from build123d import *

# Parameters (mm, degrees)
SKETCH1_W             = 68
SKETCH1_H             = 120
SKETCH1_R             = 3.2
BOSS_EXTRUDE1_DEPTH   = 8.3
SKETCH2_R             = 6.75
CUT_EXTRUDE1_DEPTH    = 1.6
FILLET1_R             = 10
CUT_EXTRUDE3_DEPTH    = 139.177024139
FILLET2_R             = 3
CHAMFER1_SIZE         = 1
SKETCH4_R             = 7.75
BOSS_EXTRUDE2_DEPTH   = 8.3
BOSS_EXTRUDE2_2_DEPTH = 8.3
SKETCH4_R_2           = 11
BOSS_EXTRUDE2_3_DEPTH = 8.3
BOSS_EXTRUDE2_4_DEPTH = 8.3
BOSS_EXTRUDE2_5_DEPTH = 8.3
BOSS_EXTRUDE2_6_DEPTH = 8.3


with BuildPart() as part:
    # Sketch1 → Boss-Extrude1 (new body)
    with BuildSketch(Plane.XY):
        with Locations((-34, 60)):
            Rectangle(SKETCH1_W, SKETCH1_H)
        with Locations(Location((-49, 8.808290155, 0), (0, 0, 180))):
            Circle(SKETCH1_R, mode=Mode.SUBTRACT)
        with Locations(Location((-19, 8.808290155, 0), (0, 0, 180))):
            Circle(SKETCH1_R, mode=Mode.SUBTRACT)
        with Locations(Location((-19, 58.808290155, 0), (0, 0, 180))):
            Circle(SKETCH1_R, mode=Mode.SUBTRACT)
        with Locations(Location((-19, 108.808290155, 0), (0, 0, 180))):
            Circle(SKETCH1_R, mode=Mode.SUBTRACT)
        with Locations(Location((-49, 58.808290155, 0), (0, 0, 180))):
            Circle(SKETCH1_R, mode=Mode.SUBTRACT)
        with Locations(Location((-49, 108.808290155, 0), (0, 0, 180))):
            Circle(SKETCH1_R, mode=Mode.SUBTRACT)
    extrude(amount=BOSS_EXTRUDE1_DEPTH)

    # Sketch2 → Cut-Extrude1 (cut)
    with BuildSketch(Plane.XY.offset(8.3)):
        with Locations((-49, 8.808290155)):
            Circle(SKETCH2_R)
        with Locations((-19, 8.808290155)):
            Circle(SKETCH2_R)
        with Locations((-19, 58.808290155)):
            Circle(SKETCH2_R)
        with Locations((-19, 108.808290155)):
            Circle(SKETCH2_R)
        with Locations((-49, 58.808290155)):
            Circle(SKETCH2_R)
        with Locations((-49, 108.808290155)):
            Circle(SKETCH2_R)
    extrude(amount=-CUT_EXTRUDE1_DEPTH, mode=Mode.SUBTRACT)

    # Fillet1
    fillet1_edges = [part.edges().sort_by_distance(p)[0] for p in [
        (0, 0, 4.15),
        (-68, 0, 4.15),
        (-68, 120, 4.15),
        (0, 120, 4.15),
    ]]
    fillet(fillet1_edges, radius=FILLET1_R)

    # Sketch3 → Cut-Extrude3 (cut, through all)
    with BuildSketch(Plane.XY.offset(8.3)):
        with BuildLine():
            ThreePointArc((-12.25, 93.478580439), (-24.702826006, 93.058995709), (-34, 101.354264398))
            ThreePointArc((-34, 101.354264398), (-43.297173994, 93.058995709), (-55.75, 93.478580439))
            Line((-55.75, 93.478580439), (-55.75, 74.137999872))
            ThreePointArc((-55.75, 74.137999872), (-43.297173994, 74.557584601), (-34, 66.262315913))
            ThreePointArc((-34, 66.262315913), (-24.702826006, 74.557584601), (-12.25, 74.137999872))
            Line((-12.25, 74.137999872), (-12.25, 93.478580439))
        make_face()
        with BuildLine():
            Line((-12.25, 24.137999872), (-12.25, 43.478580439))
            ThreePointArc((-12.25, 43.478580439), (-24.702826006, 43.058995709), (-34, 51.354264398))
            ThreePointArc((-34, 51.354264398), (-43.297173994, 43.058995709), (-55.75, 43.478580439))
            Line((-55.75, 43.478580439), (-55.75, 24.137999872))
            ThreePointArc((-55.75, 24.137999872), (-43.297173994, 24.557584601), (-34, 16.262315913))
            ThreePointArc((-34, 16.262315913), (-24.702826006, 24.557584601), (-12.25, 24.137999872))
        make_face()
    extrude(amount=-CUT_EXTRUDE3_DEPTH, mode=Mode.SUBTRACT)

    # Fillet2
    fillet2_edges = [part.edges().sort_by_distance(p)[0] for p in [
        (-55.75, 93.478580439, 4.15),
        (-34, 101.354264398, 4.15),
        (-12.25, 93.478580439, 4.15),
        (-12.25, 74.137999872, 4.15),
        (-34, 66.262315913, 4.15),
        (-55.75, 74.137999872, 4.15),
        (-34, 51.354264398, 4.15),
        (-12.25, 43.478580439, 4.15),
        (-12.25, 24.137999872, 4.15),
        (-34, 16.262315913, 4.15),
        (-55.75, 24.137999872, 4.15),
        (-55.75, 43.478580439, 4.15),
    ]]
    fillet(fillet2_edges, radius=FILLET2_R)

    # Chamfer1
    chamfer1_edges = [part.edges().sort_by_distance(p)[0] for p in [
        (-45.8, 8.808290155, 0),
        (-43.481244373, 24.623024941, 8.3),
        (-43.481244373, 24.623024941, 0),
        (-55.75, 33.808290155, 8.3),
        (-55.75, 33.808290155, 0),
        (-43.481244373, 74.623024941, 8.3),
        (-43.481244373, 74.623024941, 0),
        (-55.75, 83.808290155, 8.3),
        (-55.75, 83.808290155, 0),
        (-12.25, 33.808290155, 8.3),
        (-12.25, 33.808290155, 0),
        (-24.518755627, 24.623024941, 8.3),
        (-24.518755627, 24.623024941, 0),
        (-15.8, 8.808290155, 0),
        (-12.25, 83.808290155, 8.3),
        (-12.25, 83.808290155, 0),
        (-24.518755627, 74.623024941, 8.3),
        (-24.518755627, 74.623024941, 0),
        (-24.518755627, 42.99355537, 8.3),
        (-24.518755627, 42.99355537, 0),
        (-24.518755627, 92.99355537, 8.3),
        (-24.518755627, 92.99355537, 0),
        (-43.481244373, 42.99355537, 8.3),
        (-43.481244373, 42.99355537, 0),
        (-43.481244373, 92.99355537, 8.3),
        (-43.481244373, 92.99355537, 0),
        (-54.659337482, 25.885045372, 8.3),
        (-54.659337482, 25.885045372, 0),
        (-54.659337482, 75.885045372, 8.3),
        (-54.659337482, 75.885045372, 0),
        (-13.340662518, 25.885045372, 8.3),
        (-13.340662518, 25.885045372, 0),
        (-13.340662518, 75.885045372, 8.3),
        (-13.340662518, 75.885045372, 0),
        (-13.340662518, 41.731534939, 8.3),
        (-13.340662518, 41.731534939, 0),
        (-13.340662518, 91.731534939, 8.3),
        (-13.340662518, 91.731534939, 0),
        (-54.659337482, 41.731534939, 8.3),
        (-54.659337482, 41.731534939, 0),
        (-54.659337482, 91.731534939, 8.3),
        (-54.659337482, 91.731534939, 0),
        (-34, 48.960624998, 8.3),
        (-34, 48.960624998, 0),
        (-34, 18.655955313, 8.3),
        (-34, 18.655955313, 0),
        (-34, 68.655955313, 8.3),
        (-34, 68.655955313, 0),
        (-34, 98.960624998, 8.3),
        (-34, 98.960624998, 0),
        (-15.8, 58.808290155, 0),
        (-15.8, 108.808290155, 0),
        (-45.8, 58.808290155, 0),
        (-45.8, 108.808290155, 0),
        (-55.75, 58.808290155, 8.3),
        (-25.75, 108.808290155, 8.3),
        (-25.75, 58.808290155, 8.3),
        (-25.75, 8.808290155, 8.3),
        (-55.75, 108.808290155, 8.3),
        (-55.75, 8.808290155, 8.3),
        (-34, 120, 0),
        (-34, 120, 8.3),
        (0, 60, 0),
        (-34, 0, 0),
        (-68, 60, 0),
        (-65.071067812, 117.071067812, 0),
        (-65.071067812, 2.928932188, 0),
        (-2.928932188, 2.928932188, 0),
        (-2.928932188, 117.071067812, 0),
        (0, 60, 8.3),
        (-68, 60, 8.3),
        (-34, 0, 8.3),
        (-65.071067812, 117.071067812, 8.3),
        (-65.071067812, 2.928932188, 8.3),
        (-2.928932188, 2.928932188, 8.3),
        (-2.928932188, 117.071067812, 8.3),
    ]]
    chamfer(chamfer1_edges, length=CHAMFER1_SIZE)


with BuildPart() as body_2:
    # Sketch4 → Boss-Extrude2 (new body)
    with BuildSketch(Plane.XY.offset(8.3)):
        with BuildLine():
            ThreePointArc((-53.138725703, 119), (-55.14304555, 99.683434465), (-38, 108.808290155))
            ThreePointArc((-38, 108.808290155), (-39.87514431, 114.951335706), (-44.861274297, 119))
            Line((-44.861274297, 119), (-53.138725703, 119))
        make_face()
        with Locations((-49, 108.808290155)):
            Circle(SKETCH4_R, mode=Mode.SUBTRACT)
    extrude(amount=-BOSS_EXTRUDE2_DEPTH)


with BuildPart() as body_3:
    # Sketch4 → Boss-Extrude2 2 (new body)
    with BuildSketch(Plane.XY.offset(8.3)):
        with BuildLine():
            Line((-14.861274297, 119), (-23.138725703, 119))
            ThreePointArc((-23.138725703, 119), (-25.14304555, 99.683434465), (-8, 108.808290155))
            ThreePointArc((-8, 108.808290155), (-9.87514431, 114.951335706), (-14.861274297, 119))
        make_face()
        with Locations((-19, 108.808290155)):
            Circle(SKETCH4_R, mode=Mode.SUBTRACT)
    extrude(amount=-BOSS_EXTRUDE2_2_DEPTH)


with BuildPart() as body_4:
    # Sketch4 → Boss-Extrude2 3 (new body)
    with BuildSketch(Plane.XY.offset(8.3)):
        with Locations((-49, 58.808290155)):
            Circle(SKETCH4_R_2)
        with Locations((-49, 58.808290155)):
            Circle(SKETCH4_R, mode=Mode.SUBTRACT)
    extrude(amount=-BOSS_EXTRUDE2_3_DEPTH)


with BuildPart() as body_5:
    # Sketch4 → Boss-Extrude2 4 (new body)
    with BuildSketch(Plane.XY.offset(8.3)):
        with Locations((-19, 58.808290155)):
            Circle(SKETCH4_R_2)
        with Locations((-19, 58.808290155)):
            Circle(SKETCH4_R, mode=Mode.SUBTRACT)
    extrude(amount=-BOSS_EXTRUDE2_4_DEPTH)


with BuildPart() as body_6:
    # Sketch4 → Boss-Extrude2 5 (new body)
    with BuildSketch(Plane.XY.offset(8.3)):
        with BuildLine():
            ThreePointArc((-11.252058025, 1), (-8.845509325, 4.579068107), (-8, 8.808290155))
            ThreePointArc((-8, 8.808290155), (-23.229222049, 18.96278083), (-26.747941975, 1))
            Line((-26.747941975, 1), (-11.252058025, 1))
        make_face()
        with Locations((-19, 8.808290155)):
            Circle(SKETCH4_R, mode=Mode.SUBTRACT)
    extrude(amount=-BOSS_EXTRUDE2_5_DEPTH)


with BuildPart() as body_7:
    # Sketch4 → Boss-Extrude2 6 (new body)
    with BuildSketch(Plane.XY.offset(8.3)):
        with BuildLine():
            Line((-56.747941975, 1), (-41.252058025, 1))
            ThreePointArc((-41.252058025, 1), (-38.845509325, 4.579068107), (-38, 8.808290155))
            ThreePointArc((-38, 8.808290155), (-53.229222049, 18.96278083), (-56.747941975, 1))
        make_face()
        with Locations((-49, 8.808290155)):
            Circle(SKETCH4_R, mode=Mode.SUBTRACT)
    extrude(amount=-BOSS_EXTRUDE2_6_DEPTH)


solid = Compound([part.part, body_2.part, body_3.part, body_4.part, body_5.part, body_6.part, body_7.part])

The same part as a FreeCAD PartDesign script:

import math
import FreeCAD as App
import Part
import Sketcher
from FreeCAD import Vector


def edges_at(feature, points):
    """Names of the edges that pass closest to the given points."""
    edges = feature.Shape.Edges
    near = lambda p: min(range(len(edges)), key=lambda i: edges[i].distToShape(Part.Vertex(*p))[0])
    return sorted({f"Edge{near(p) + 1}" for p in points})

doc = App.newDocument("Part")
body = doc.addObject("PartDesign::Body", "Body")

# Sketch on XY plane
sketch1 = doc.addObject("Sketcher::SketchObject", "Sketch")
body.addObject(sketch1)
sketch1.AttachmentSupport = (doc.XY_Plane, [""])
sketch1.MapMode = "FlatFace"
sketch1.addGeometry(Part.LineSegment(Vector(-68, 120, 0), Vector(-68, 0, 0)), False)
sketch1.addGeometry(Part.LineSegment(Vector(-68, 0, 0), Vector(0, 0, 0)), False)
sketch1.addGeometry(Part.LineSegment(Vector(0, 0, 0), Vector(0, 120, 0)), False)
sketch1.addGeometry(Part.LineSegment(Vector(0, 120, 0), Vector(-68, 120, 0)), False)
sketch1.addGeometry(Part.Circle(Vector(-49, 8.8, 0), Vector(0, 0, 1), 3.2), False)
sketch1.addGeometry(Part.Circle(Vector(-19, 8.8, 0), Vector(0, 0, 1), 3.2), False)
sketch1.addGeometry(Part.Circle(Vector(-49, 58.8, 0), Vector(0, 0, 1), 3.2), False)
sketch1.addGeometry(Part.Circle(Vector(-49, 108.8, 0), Vector(0, 0, 1), 3.2), False)
sketch1.addGeometry(Part.Circle(Vector(-19, 58.8, 0), Vector(0, 0, 1), 3.2), False)
sketch1.addGeometry(Part.Circle(Vector(-19, 108.8, 0), Vector(0, 0, 1), 3.2), False)
sketch1.addConstraint(Sketcher.Constraint("Coincident", 0, 2, 1, 1))
sketch1.addConstraint(Sketcher.Constraint("Coincident", 1, 2, 2, 1))
sketch1.addConstraint(Sketcher.Constraint("Coincident", 2, 2, 3, 1))
sketch1.addConstraint(Sketcher.Constraint("Coincident", 3, 2, 0, 1))
sketch1.addConstraint(Sketcher.Constraint("Vertical", 0))
sketch1.addConstraint(Sketcher.Constraint("Horizontal", 1))
sketch1.addConstraint(Sketcher.Constraint("Vertical", 2))
sketch1.addConstraint(Sketcher.Constraint("Horizontal", 3))
sketch1.addConstraint(Sketcher.Constraint("Coincident", 1, 2, -1, 1))
sketch1.addConstraint(Sketcher.Constraint("Equal", 4, 5))
sketch1.addConstraint(Sketcher.Constraint("Equal", 5, 6))
sketch1.addConstraint(Sketcher.Constraint("Equal", 6, 7))
sketch1.addConstraint(Sketcher.Constraint("Equal", 7, 8))
sketch1.addConstraint(Sketcher.Constraint("Equal", 8, 9))
sketch1.addConstraint(Sketcher.Constraint("Horizontal", 4, 3, 5, 3))
sketch1.addConstraint(Sketcher.Constraint("Horizontal", 6, 3, 8, 3))
sketch1.addConstraint(Sketcher.Constraint("Horizontal", 7, 3, 9, 3))
sketch1.addConstraint(Sketcher.Constraint("Vertical", 4, 3, 6, 3))
sketch1.addConstraint(Sketcher.Constraint("Vertical", 6, 3, 7, 3))
sketch1.addConstraint(Sketcher.Constraint("Vertical", 5, 3, 8, 3))
sketch1.addConstraint(Sketcher.Constraint("Vertical", 8, 3, 9, 3))
sketch1.addConstraint(Sketcher.Constraint("Diameter", 4, 6.4))
sketch1.addConstraint(Sketcher.Constraint("DistanceX", 1, 1, 1, 2, 68.0))
sketch1.addConstraint(Sketcher.Constraint("DistanceY", 0, 2, 0, 1, 120.0))
sketch1.addConstraint(Sketcher.Constraint("DistanceX", 4, 3, -1, 1, 49.0))
sketch1.addConstraint(Sketcher.Constraint("DistanceX", 5, 3, -1, 1, 19.0))
sketch1.addConstraint(Sketcher.Constraint("DistanceY", 4, 3, 6, 3, 50.0))
sketch1.addConstraint(Sketcher.Constraint("DistanceY", 6, 3, 7, 3, 50.0))
sketch1.addConstraint(Sketcher.Constraint("DistanceY", -1, 1, 4, 3, 8.80829))
pad1 = doc.addObject("PartDesign::Pad", "Pad")
body.addObject(pad1)
pad1.Profile = sketch1
pad1.Length = 8.3

# Sketch on XY plane
sketch2 = doc.addObject("Sketcher::SketchObject", "Sketch001")
body.addObject(sketch2)
sketch2.AttachmentSupport = (doc.XY_Plane, [""])
sketch2.MapMode = "FlatFace"
sketch2.AttachmentOffset = App.Placement(Vector(0, 0, 8.3), App.Rotation())
sketch2.addGeometry(Part.Circle(Vector(-49, 9, 0), Vector(0, 0, 1), 7), False)
sketch2.addGeometry(Part.Circle(Vector(-19, 9, 0), Vector(0, 0, 1), 7), False)
sketch2.addGeometry(Part.Circle(Vector(-19, 59, 0), Vector(0, 0, 1), 7), False)
sketch2.addGeometry(Part.Circle(Vector(-19, 109, 0), Vector(0, 0, 1), 7), False)
sketch2.addGeometry(Part.Circle(Vector(-49, 59, 0), Vector(0, 0, 1), 7), False)
sketch2.addGeometry(Part.Circle(Vector(-49, 109, 0), Vector(0, 0, 1), 7), False)
sketch2.addConstraint(Sketcher.Constraint("Equal", 0, 1))
sketch2.addConstraint(Sketcher.Constraint("Equal", 1, 2))
sketch2.addConstraint(Sketcher.Constraint("Equal", 2, 3))
sketch2.addConstraint(Sketcher.Constraint("Equal", 3, 4))
sketch2.addConstraint(Sketcher.Constraint("Equal", 4, 5))
sketch2.addConstraint(Sketcher.Constraint("Horizontal", 0, 3, 1, 3))
sketch2.addConstraint(Sketcher.Constraint("Horizontal", 2, 3, 4, 3))
sketch2.addConstraint(Sketcher.Constraint("Horizontal", 3, 3, 5, 3))
sketch2.addConstraint(Sketcher.Constraint("Vertical", 1, 3, 2, 3))
sketch2.addConstraint(Sketcher.Constraint("Vertical", 2, 3, 3, 3))
sketch2.addConstraint(Sketcher.Constraint("Vertical", 0, 3, 4, 3))
sketch2.addConstraint(Sketcher.Constraint("Vertical", 4, 3, 5, 3))
sketch2.addConstraint(Sketcher.Constraint("Diameter", 0, 13.5))
sketch2.addConstraint(Sketcher.Constraint("DistanceX", 0, 3, -1, 1, 49.0))
sketch2.addConstraint(Sketcher.Constraint("DistanceX", 1, 3, -1, 1, 19.0))
sketch2.addConstraint(Sketcher.Constraint("DistanceY", 1, 3, 2, 3, 50.0))
sketch2.addConstraint(Sketcher.Constraint("DistanceY", 2, 3, 3, 3, 50.0))
sketch2.addConstraint(Sketcher.Constraint("DistanceY", -1, 1, 0, 3, 8.80829))
pocket1 = doc.addObject("PartDesign::Pocket", "Pocket")
body.addObject(pocket1)
pocket1.Profile = sketch2
pocket1.Length = 1.6
doc.recompute()

fillet = doc.addObject("PartDesign::Fillet", "Fillet")
body.addObject(fillet)
fillet.Base = (pocket1, edges_at(pocket1, [
    (0, 0, 4.15),
    (-68, 0, 4.15),
    (-68, 120, 4.15),
    (0, 120, 4.15),
]))
fillet.Radius = 10

# Sketch on XY plane
sketch3 = doc.addObject("Sketcher::SketchObject", "Sketch002")
body.addObject(sketch3)
sketch3.AttachmentSupport = (doc.XY_Plane, [""])
sketch3.MapMode = "FlatFace"
sketch3.AttachmentOffset = App.Placement(Vector(0, 0, 8.3), App.Rotation())
sketch3.addGeometry(Part.ArcOfCircle(Part.Circle(Vector(-19, 109, 0), Vector(0, 0, 1), 17), math.radians(-154), math.radians(-66)), False)
sketch3.addGeometry(Part.ArcOfCircle(Part.Circle(Vector(-49, 109, 0), Vector(0, 0, 1), 17), math.radians(-114), math.radians(-26)), False)
sketch3.addGeometry(Part.LineSegment(Vector(-56, 93, 0), Vector(-56, 74, 0)), False)
sketch3.addGeometry(Part.ArcOfCircle(Part.Circle(Vector(-49, 59, 0), Vector(0, 0, 1), 17), math.radians(26), math.radians(114)), False)
sketch3.addGeometry(Part.ArcOfCircle(Part.Circle(Vector(-19, 59, 0), Vector(0, 0, 1), 17), math.radians(66), math.radians(154)), False)
sketch3.addGeometry(Part.LineSegment(Vector(-12, 74, 0), Vector(-12, 93, 0)), False)
sketch3.addGeometry(Part.LineSegment(Vector(-12, 24, 0), Vector(-12, 43, 0)), False)
sketch3.addGeometry(Part.ArcOfCircle(Part.Circle(Vector(-19, 59, 0), Vector(0, 0, 1), 17), math.radians(-154), math.radians(-66)), False)
sketch3.addGeometry(Part.ArcOfCircle(Part.Circle(Vector(-49, 59, 0), Vector(0, 0, 1), 17), math.radians(-114), math.radians(-26)), False)
sketch3.addGeometry(Part.LineSegment(Vector(-56, 43, 0), Vector(-56, 24, 0)), False)
sketch3.addGeometry(Part.ArcOfCircle(Part.Circle(Vector(-49, 9, 0), Vector(0, 0, 1), 17), math.radians(26), math.radians(114)), False)
sketch3.addGeometry(Part.ArcOfCircle(Part.Circle(Vector(-19, 9, 0), Vector(0, 0, 1), 17), math.radians(66), math.radians(154)), False)
sketch3.addConstraint(Sketcher.Constraint("Coincident", 0, 1, 1, 2))
sketch3.addConstraint(Sketcher.Constraint("Coincident", 1, 1, 2, 1))
sketch3.addConstraint(Sketcher.Constraint("Coincident", 2, 2, 3, 2))
sketch3.addConstraint(Sketcher.Constraint("Coincident", 3, 1, 4, 2))
sketch3.addConstraint(Sketcher.Constraint("Coincident", 4, 1, 5, 1))
sketch3.addConstraint(Sketcher.Constraint("Coincident", 5, 2, 0, 2))
sketch3.addConstraint(Sketcher.Constraint("Coincident", 6, 2, 7, 2))
sketch3.addConstraint(Sketcher.Constraint("Coincident", 7, 1, 8, 2))
sketch3.addConstraint(Sketcher.Constraint("Coincident", 8, 1, 9, 1))
sketch3.addConstraint(Sketcher.Constraint("Coincident", 9, 2, 10, 2))
sketch3.addConstraint(Sketcher.Constraint("Coincident", 10, 1, 11, 2))
sketch3.addConstraint(Sketcher.Constraint("Coincident", 11, 1, 6, 1))
sketch3.addConstraint(Sketcher.Constraint("Vertical", 2))
sketch3.addConstraint(Sketcher.Constraint("Vertical", 5))
sketch3.addConstraint(Sketcher.Constraint("Vertical", 6))
sketch3.addConstraint(Sketcher.Constraint("Vertical", 9))
sketch3.addConstraint(Sketcher.Constraint("Coincident", 7, 3, 4, 3))
sketch3.addConstraint(Sketcher.Constraint("Coincident", 8, 3, 3, 3))
sketch3.addConstraint(Sketcher.Constraint("Equal", 0, 1))
sketch3.addConstraint(Sketcher.Constraint("Equal", 1, 3))
sketch3.addConstraint(Sketcher.Constraint("Equal", 3, 4))
sketch3.addConstraint(Sketcher.Constraint("Equal", 4, 7))
sketch3.addConstraint(Sketcher.Constraint("Equal", 7, 8))
sketch3.addConstraint(Sketcher.Constraint("Equal", 8, 10))
sketch3.addConstraint(Sketcher.Constraint("Equal", 10, 11))
sketch3.addConstraint(Sketcher.Constraint("Horizontal", 0, 3, 1, 3))
sketch3.addConstraint(Sketcher.Constraint("Horizontal", 3, 3, 4, 3))
sketch3.addConstraint(Sketcher.Constraint("Horizontal", 10, 3, 11, 3))
sketch3.addConstraint(Sketcher.Constraint("Horizontal", 2, 2, 4, 1))
sketch3.addConstraint(Sketcher.Constraint("Horizontal", 1, 1, 5, 2))
sketch3.addConstraint(Sketcher.Constraint("Horizontal", 6, 2, 8, 1))
sketch3.addConstraint(Sketcher.Constraint("Horizontal", 9, 2, 11, 1))
sketch3.addConstraint(Sketcher.Constraint("Vertical", 1, 3, 3, 3))
sketch3.addConstraint(Sketcher.Constraint("Vertical", 8, 3, 10, 3))
sketch3.addConstraint(Sketcher.Constraint("Vertical", 5, 2, 6, 2))
sketch3.addConstraint(Sketcher.Constraint("Equal", 5, 6))
sketch3.addConstraint(Sketcher.Constraint("Radius", 0, 16.75))
sketch3.addConstraint(Sketcher.Constraint("DistanceX", 0, 3, -1, 1, 19.0))
sketch3.addConstraint(Sketcher.Constraint("DistanceX", 1, 3, -1, 1, 49.0))
sketch3.addConstraint(Sketcher.Constraint("DistanceY", 3, 3, 1, 3, 50.0))
sketch3.addConstraint(Sketcher.Constraint("DistanceX", 1, 1, -1, 1, 55.75))
sketch3.addConstraint(Sketcher.Constraint("DistanceY", -1, 1, 2, 2, 74.138))
pocket2 = doc.addObject("PartDesign::Pocket", "Pocket001")
body.addObject(pocket2)
pocket2.Profile = sketch3
pocket2.Type = "ThroughAll"
doc.recompute()

fillet2 = doc.addObject("PartDesign::Fillet", "Fillet001")
body.addObject(fillet2)
fillet2.Base = (pocket2, edges_at(pocket2, [
    (-55.75, 93.479, 4.15),
    (-34, 101.354, 4.15),
    (-12.25, 93.479, 4.15),
    (-12.25, 74.138, 4.15),
    (-34, 66.262, 4.15),
    (-55.75, 74.138, 4.15),
    (-34, 51.354, 4.15),
    (-12.25, 43.479, 4.15),
    (-12.25, 24.138, 4.15),
    (-34, 16.262, 4.15),
    (-55.75, 24.138, 4.15),
    (-55.75, 43.479, 4.15),
]))
fillet2.Radius = 3
doc.recompute()

chamfer = doc.addObject("PartDesign::Chamfer", "Chamfer")
body.addObject(chamfer)
chamfer.Base = (fillet2, edges_at(fillet2, [
    (-45.8, 8.808, 0),
    (-43.481, 24.623, 8.3),
    (-43.481, 24.623, 0),
    (-55.75, 33.808, 8.3),
    (-55.75, 33.808, 0),
    (-43.481, 74.623, 8.3),
    (-43.481, 74.623, 0),
    (-55.75, 83.808, 8.3),
    (-55.75, 83.808, 0),
    (-12.25, 33.808, 8.3),
    (-12.25, 33.808, 0),
    (-24.519, 24.623, 8.3),
    (-24.519, 24.623, 0),
    (-15.8, 8.808, 0),
    (-12.25, 83.808, 8.3),
    (-12.25, 83.808, 0),
    (-24.519, 74.623, 8.3),
    (-24.519, 74.623, 0),
    (-24.519, 42.994, 8.3),
    (-24.519, 42.994, 0),
    (-24.519, 92.994, 8.3),
    (-24.519, 92.994, 0),
    (-43.481, 42.994, 8.3),
    (-43.481, 42.994, 0),
    (-43.481, 92.994, 8.3),
    (-43.481, 92.994, 0),
    (-54.659, 25.885, 8.3),
    (-54.659, 25.885, 0),
    (-54.659, 75.885, 8.3),
    (-54.659, 75.885, 0),
    (-13.341, 25.885, 8.3),
    (-13.341, 25.885, 0),
    (-13.341, 75.885, 8.3),
    (-13.341, 75.885, 0),
    (-13.341, 41.732, 8.3),
    (-13.341, 41.732, 0),
    (-13.341, 91.732, 8.3),
    (-13.341, 91.732, 0),
    (-54.659, 41.732, 8.3),
    (-54.659, 41.732, 0),
    (-54.659, 91.732, 8.3),
    (-54.659, 91.732, 0),
    (-34, 48.961, 8.3),
    (-34, 48.961, 0),
    (-34, 18.656, 8.3),
    (-34, 18.656, 0),
    (-34, 68.656, 8.3),
    (-34, 68.656, 0),
    (-34, 98.961, 8.3),
    (-34, 98.961, 0),
    (-15.8, 58.808, 0),
    (-15.8, 108.808, 0),
    (-45.8, 58.808, 0),
    (-45.8, 108.808, 0),
    (-55.75, 58.808, 8.3),
    (-25.75, 108.808, 8.3),
    (-25.75, 58.808, 8.3),
    (-25.75, 8.808, 8.3),
    (-55.75, 108.808, 8.3),
    (-55.75, 8.808, 8.3),
    (-34, 120, 0),
    (-34, 120, 8.3),
    (0, 60, 0),
    (-34, 0, 0),
    (-68, 60, 0),
    (-65.071, 117.071, 0),
    (-65.071, 2.929, 0),
    (-2.929, 2.929, 0),
    (-2.929, 117.071, 0),
    (0, 60, 8.3),
    (-68, 60, 8.3),
    (-34, 0, 8.3),
    (-65.071, 117.071, 8.3),
    (-65.071, 2.929, 8.3),
    (-2.929, 2.929, 8.3),
    (-2.929, 117.071, 8.3),
]))
chamfer.Size = 1
body2 = doc.addObject("PartDesign::Body", "Body001")

# Sketch on XY plane
sketch4 = doc.addObject("Sketcher::SketchObject", "Sketch003")
body2.addObject(sketch4)
sketch4.AttachmentSupport = (doc.getObject("XY_Plane001"), [""])
sketch4.MapMode = "FlatFace"
sketch4.AttachmentOffset = App.Placement(Vector(0, 0, 8.3), App.Rotation())
sketch4.addGeometry(Part.ArcOfCircle(Part.Circle(Vector(-49, 109, 0), Vector(0, 0, 1), 11), math.radians(112), math.radians(360)), False)
sketch4.addGeometry(Part.ArcOfCircle(Part.Circle(Vector(-49, 109, 0), Vector(0, 0, 1), 11), math.radians(0), math.radians(68)), False)
sketch4.addGeometry(Part.LineSegment(Vector(-45, 119, 0), Vector(-53, 119, 0)), False)
sketch4.addGeometry(Part.Circle(Vector(-49, 109, 0), Vector(0, 0, 1), 8), False)
sketch4.addConstraint(Sketcher.Constraint("Tangent", 0, 2, 1, 1))
sketch4.addConstraint(Sketcher.Constraint("Coincident", 1, 2, 2, 1))
sketch4.addConstraint(Sketcher.Constraint("Coincident", 2, 2, 0, 1))
sketch4.addConstraint(Sketcher.Constraint("Horizontal", 2))
sketch4.addConstraint(Sketcher.Constraint("Coincident", 3, 3, 0, 3))
sketch4.addConstraint(Sketcher.Constraint("Equal", 0, 1))
sketch4.addConstraint(Sketcher.Constraint("Horizontal", 3, 3, 0, 2))
sketch4.addConstraint(Sketcher.Constraint("Radius", 0, 11.0))
sketch4.addConstraint(Sketcher.Constraint("Diameter", 3, 15.5))
sketch4.addConstraint(Sketcher.Constraint("DistanceX", 0, 3, -1, 1, 49.0))
sketch4.addConstraint(Sketcher.Constraint("DistanceY", -1, 1, 1, 2, 119.0))
sketch4.addConstraint(Sketcher.Constraint("DistanceX", 2, 2, 2, 1, 8.277451))
pad2 = doc.addObject("PartDesign::Pad", "Pad001")
body2.addObject(pad2)
pad2.Profile = sketch4
pad2.Length = 8.3
pad2.Reversed = True
body3 = doc.addObject("PartDesign::Body", "Body002")

# Sketch on XY plane
sketch5 = doc.addObject("Sketcher::SketchObject", "Sketch004")
body3.addObject(sketch5)
sketch5.AttachmentSupport = (doc.getObject("XY_Plane002"), [""])
sketch5.MapMode = "FlatFace"
sketch5.AttachmentOffset = App.Placement(Vector(0, 0, 8.3), App.Rotation())
sketch5.addGeometry(Part.LineSegment(Vector(-15, 119, 0), Vector(-23, 119, 0)), False)
sketch5.addGeometry(Part.ArcOfCircle(Part.Circle(Vector(-19, 109, 0), Vector(0, 0, 1), 11), math.radians(112), math.radians(360)), False)
sketch5.addGeometry(Part.ArcOfCircle(Part.Circle(Vector(-19, 109, 0), Vector(0, 0, 1), 11), math.radians(0), math.radians(68)), False)
sketch5.addGeometry(Part.Circle(Vector(-19, 109, 0), Vector(0, 0, 1), 8), False)
sketch5.addConstraint(Sketcher.Constraint("Coincident", 0, 2, 1, 1))
sketch5.addConstraint(Sketcher.Constraint("Tangent", 1, 2, 2, 1))
sketch5.addConstraint(Sketcher.Constraint("Coincident", 2, 2, 0, 1))
sketch5.addConstraint(Sketcher.Constraint("Horizontal", 0))
sketch5.addConstraint(Sketcher.Constraint("Coincident", 3, 3, 1, 3))
sketch5.addConstraint(Sketcher.Constraint("Equal", 1, 2))
sketch5.addConstraint(Sketcher.Constraint("Horizontal", 3, 3, 1, 2))
sketch5.addConstraint(Sketcher.Constraint("Radius", 1, 11.0))
sketch5.addConstraint(Sketcher.Constraint("Diameter", 3, 15.5))
sketch5.addConstraint(Sketcher.Constraint("DistanceX", 1, 3, -1, 1, 19.0))
sketch5.addConstraint(Sketcher.Constraint("DistanceY", -1, 1, 0, 2, 119.0))
sketch5.addConstraint(Sketcher.Constraint("DistanceX", 0, 2, 0, 1, 8.277451))
pad3 = doc.addObject("PartDesign::Pad", "Pad002")
body3.addObject(pad3)
pad3.Profile = sketch5
pad3.Length = 8.3
pad3.Reversed = True
body4 = doc.addObject("PartDesign::Body", "Body003")

# Sketch on XY plane
sketch6 = doc.addObject("Sketcher::SketchObject", "Sketch005")
body4.addObject(sketch6)
sketch6.AttachmentSupport = (doc.getObject("XY_Plane003"), [""])
sketch6.MapMode = "FlatFace"
sketch6.AttachmentOffset = App.Placement(Vector(0, 0, 8.3), App.Rotation())
sketch6.addGeometry(Part.Circle(Vector(-49, 59, 0), Vector(0, 0, 1), 11), False)
sketch6.addGeometry(Part.Circle(Vector(-49, 59, 0), Vector(0, 0, 1), 8), False)
sketch6.addConstraint(Sketcher.Constraint("Coincident", 1, 3, 0, 3))
sketch6.addConstraint(Sketcher.Constraint("Diameter", 0, 22.0))
sketch6.addConstraint(Sketcher.Constraint("Diameter", 1, 15.5))
sketch6.addConstraint(Sketcher.Constraint("DistanceX", 0, 3, -1, 1, 49.0))
sketch6.addConstraint(Sketcher.Constraint("DistanceY", -1, 1, 0, 3, 58.80829))
pad4 = doc.addObject("PartDesign::Pad", "Pad003")
body4.addObject(pad4)
pad4.Profile = sketch6
pad4.Length = 8.3
pad4.Reversed = True
body5 = doc.addObject("PartDesign::Body", "Body004")

# Sketch on XY plane
sketch7 = doc.addObject("Sketcher::SketchObject", "Sketch006")
body5.addObject(sketch7)
sketch7.AttachmentSupport = (doc.getObject("XY_Plane004"), [""])
sketch7.MapMode = "FlatFace"
sketch7.AttachmentOffset = App.Placement(Vector(0, 0, 8.3), App.Rotation())
sketch7.addGeometry(Part.Circle(Vector(-19, 59, 0), Vector(0, 0, 1), 11), False)
sketch7.addGeometry(Part.Circle(Vector(-19, 59, 0), Vector(0, 0, 1), 8), False)
sketch7.addConstraint(Sketcher.Constraint("Coincident", 1, 3, 0, 3))
sketch7.addConstraint(Sketcher.Constraint("Diameter", 0, 22.0))
sketch7.addConstraint(Sketcher.Constraint("Diameter", 1, 15.5))
sketch7.addConstraint(Sketcher.Constraint("DistanceX", 0, 3, -1, 1, 19.0))
sketch7.addConstraint(Sketcher.Constraint("DistanceY", -1, 1, 0, 3, 58.80829))
pad5 = doc.addObject("PartDesign::Pad", "Pad004")
body5.addObject(pad5)
pad5.Profile = sketch7
pad5.Length = 8.3
pad5.Reversed = True
body6 = doc.addObject("PartDesign::Body", "Body005")

# Sketch on XY plane
sketch8 = doc.addObject("Sketcher::SketchObject", "Sketch007")
body6.addObject(sketch8)
sketch8.AttachmentSupport = (doc.getObject("XY_Plane005"), [""])
sketch8.MapMode = "FlatFace"
sketch8.AttachmentOffset = App.Placement(Vector(0, 0, 8.3), App.Rotation())
sketch8.addGeometry(Part.ArcOfCircle(Part.Circle(Vector(-19, 9, 0), Vector(0, 0, 1), 11), math.radians(-45), math.radians(0)), False)
sketch8.addGeometry(Part.ArcOfCircle(Part.Circle(Vector(-19, 9, 0), Vector(0, 0, 1), 11), math.radians(0), math.radians(225)), False)
sketch8.addGeometry(Part.LineSegment(Vector(-27, 1, 0), Vector(-11, 1, 0)), False)
sketch8.addGeometry(Part.Circle(Vector(-19, 9, 0), Vector(0, 0, 1), 8), False)
sketch8.addConstraint(Sketcher.Constraint("Tangent", 0, 2, 1, 1))
sketch8.addConstraint(Sketcher.Constraint("Coincident", 1, 2, 2, 1))
sketch8.addConstraint(Sketcher.Constraint("Coincident", 2, 2, 0, 1))
sketch8.addConstraint(Sketcher.Constraint("Horizontal", 2))
sketch8.addConstraint(Sketcher.Constraint("Coincident", 3, 3, 0, 3))
sketch8.addConstraint(Sketcher.Constraint("Equal", 0, 1))
sketch8.addConstraint(Sketcher.Constraint("Horizontal", 3, 3, 0, 2))
sketch8.addConstraint(Sketcher.Constraint("Radius", 0, 11.0))
sketch8.addConstraint(Sketcher.Constraint("Diameter", 3, 15.5))
sketch8.addConstraint(Sketcher.Constraint("DistanceX", 0, 3, -1, 1, 19.0))
sketch8.addConstraint(Sketcher.Constraint("DistanceY", -1, 1, 1, 2, 1.0))
sketch8.addConstraint(Sketcher.Constraint("DistanceX", 2, 1, 2, 2, 15.495884))
pad6 = doc.addObject("PartDesign::Pad", "Pad005")
body6.addObject(pad6)
pad6.Profile = sketch8
pad6.Length = 8.3
pad6.Reversed = True
body7 = doc.addObject("PartDesign::Body", "Body006")

# Sketch on XY plane
sketch9 = doc.addObject("Sketcher::SketchObject", "Sketch008")
body7.addObject(sketch9)
sketch9.AttachmentSupport = (doc.getObject("XY_Plane006"), [""])
sketch9.MapMode = "FlatFace"
sketch9.AttachmentOffset = App.Placement(Vector(0, 0, 8.3), App.Rotation())
sketch9.addGeometry(Part.LineSegment(Vector(-57, 1, 0), Vector(-41, 1, 0)), False)
sketch9.addGeometry(Part.ArcOfCircle(Part.Circle(Vector(-49, 9, 0), Vector(0, 0, 1), 11), math.radians(-45), math.radians(0)), False)
sketch9.addGeometry(Part.ArcOfCircle(Part.Circle(Vector(-49, 9, 0), Vector(0, 0, 1), 11), math.radians(0), math.radians(225)), False)
sketch9.addGeometry(Part.Circle(Vector(-49, 9, 0), Vector(0, 0, 1), 8), False)
sketch9.addConstraint(Sketcher.Constraint("Coincident", 0, 2, 1, 1))
sketch9.addConstraint(Sketcher.Constraint("Tangent", 1, 2, 2, 1))
sketch9.addConstraint(Sketcher.Constraint("Coincident", 2, 2, 0, 1))
sketch9.addConstraint(Sketcher.Constraint("Horizontal", 0))
sketch9.addConstraint(Sketcher.Constraint("Coincident", 3, 3, 1, 3))
sketch9.addConstraint(Sketcher.Constraint("Equal", 1, 2))
sketch9.addConstraint(Sketcher.Constraint("Horizontal", 3, 3, 1, 2))
sketch9.addConstraint(Sketcher.Constraint("Radius", 1, 11.0))
sketch9.addConstraint(Sketcher.Constraint("Diameter", 3, 15.5))
sketch9.addConstraint(Sketcher.Constraint("DistanceX", 1, 3, -1, 1, 49.0))
sketch9.addConstraint(Sketcher.Constraint("DistanceY", -1, 1, 0, 2, 1.0))
sketch9.addConstraint(Sketcher.Constraint("DistanceX", 0, 1, 0, 2, 15.495884))
pad7 = doc.addObject("PartDesign::Pad", "Pad006")
body7.addObject(pad7)
pad7.Profile = sketch9
pad7.Length = 8.3
pad7.Reversed = True

doc.recompute()
